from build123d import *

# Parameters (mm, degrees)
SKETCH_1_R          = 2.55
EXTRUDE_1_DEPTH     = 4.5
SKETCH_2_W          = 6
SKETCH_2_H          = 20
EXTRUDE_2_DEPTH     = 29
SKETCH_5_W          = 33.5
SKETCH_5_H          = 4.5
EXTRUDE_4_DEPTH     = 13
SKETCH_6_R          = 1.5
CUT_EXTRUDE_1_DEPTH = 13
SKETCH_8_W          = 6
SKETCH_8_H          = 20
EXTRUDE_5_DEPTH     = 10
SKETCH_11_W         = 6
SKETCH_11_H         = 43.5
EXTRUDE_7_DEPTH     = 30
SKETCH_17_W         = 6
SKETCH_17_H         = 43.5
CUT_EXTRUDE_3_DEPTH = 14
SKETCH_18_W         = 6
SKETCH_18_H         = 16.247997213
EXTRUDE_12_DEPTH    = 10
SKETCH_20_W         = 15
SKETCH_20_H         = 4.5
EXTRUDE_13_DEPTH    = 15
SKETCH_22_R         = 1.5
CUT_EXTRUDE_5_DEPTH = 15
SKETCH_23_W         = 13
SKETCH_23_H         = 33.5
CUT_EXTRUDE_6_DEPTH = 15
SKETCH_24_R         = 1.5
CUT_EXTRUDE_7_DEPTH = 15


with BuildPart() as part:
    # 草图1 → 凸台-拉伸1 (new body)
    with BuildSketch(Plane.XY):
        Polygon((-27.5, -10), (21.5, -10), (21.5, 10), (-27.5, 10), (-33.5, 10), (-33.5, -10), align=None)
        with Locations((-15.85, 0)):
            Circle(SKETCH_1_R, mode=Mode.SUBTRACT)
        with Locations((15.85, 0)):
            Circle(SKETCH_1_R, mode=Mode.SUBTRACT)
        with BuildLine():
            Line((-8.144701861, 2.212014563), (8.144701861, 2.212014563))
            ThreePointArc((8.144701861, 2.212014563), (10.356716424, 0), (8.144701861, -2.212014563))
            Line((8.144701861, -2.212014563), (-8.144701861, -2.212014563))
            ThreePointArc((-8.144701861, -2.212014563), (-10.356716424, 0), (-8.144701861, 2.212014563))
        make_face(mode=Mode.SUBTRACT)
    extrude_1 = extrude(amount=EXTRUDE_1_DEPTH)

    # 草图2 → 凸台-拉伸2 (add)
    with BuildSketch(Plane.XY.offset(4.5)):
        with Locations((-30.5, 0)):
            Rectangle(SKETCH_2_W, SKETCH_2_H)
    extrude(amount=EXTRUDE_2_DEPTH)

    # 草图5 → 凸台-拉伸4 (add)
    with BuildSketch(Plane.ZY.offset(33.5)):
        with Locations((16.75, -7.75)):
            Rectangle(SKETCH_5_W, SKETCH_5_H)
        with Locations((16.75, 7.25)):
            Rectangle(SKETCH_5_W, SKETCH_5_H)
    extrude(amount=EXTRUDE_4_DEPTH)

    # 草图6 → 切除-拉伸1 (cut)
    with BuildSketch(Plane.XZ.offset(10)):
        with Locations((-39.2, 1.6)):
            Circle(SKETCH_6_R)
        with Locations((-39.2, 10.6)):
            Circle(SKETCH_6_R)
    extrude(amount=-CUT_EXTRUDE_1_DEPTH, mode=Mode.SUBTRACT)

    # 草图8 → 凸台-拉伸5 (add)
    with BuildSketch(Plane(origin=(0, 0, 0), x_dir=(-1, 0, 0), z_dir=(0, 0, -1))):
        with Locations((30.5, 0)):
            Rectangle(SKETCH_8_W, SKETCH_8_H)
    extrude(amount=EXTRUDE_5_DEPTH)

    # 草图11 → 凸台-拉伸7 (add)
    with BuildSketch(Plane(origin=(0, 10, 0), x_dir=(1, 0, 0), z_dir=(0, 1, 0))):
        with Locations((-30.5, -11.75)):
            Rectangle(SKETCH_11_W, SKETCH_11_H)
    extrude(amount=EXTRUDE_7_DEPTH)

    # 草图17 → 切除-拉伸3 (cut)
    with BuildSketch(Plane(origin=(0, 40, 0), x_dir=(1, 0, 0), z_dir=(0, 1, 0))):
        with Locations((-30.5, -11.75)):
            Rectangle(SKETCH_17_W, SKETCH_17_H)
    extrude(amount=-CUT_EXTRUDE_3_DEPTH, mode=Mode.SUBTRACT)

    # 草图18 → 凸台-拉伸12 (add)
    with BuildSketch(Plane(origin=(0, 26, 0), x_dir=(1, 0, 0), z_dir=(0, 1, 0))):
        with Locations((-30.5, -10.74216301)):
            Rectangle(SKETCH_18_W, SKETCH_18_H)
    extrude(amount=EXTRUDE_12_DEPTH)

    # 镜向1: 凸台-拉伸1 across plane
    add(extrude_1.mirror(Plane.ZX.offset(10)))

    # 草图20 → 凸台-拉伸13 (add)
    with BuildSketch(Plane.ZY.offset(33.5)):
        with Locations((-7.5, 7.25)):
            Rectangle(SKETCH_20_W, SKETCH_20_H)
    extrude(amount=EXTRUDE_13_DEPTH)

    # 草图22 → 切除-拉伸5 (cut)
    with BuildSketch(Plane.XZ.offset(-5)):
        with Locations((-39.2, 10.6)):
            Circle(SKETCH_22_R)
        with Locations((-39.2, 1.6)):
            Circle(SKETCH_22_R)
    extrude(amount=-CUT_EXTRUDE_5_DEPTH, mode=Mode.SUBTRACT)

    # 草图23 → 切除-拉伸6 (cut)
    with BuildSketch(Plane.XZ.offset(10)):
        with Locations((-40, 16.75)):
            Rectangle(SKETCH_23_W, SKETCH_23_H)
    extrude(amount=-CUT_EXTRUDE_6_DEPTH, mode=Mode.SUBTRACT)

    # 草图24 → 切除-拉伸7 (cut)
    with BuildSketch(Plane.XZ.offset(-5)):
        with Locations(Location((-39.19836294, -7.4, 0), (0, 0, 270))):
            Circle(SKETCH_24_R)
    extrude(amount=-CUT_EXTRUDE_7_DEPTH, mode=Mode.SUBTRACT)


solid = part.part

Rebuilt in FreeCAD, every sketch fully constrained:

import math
import FreeCAD as App
import Part
import Sketcher

doc = App.newDocument("Part")
params = doc.addObject("Spreadsheet::Sheet", "Params")
for row, (alias, value) in enumerate([
    ("sketch1_diameter", "5.1 mm"),
    ("sketch1_width", "55 mm"),
    ("sketch1_height", "20 mm"),
    ("pad1_length", "4.5 mm"),
    ("sketch2_width", "6 mm"),
    ("sketch2_height", "20 mm"),
    ("pad2_length", "29 mm"),
    ("sketch3_width", "4.5 mm"),
    ("sketch3_height", "33.5 mm"),
    ("pad3_length", "13 mm"),
    ("sketch4_diameter", "3 mm"),
    ("pocket1_length", "13 mm"),
    ("sketch5_width", "6 mm"),
    ("sketch5_height", "20 mm"),
    ("pad4_length", "10 mm"),
    ("sketch6_width", "6 mm"),
    ("sketch6_height", "43.5 mm"),
    ("pad5_length", "30 mm"),
    ("sketch7_width", "6 mm"),
    ("sketch7_height", "43.5 mm"),
    ("pocket2_length", "14 mm"),
    ("sketch8_width", "6 mm"),
    ("pad6_length", "10 mm"),
    ("sketch9_height", "15 mm"),
    ("sketch9_width", "4.5 mm"),
    ("pad7_length", "15 mm"),
    ("sketch10_diameter", "3 mm"),
    ("pocket3_length", "15 mm"),
    ("sketch11_width", "13 mm"),
    ("sketch11_height", "33.5 mm"),
    ("pocket4_length", "15 mm"),
    ("sketch12_diameter", "3 mm"),
    ("pocket5_length", "15 mm"),
], start=1):
    params.set(f"A{row}", alias)
    params.set(f"B{row}", "=" + value)
    params.setAlias(f"B{row}", alias)

body = doc.addObject("PartDesign::Body", "Body")

# Sketch on XY plane
sketch1 = doc.addObject("Sketcher::SketchObject", "Sketch")
body.addObject(sketch1)
sketch1.AttachmentSupport = (doc.XY_Plane, [""])
sketch1.MapMode = "FlatFace"
sketch1.addGeometry([
    Part.LineSegment(App.Vector(21.5, -10, 0), App.Vector(21.5, 10, 0)),  # 0
    Part.LineSegment(App.Vector(21.5, 10, 0), App.Vector(-33.5, 10, 0)),  # 1
    Part.LineSegment(App.Vector(-33.5, 10, 0), App.Vector(-33.5, -10, 0)),  # 2
    Part.LineSegment(App.Vector(-33.5, -10, 0), App.Vector(21.5, -10, 0)),  # 3
    Part.Circle(App.Vector(-15.8, 0, 0), App.Vector(0, 0, 1), 2.5),  # 4
    Part.ArcOfCircle(Part.Circle(App.Vector(-8.1, 0, 0), App.Vector(0, 0, 1), 2.2), math.radians(90), math.radians(270)),  # 5
    Part.LineSegment(App.Vector(-8.1, 2.2, 0), App.Vector(8.1, 2.2, 0)),  # 6
    Part.ArcOfCircle(Part.Circle(App.Vector(8.1, 0, 0), App.Vector(0, 0, 1), 2.2), math.radians(-90), math.radians(90)),  # 7
    Part.LineSegment(App.Vector(8.1, -2.2, 0), App.Vector(-8.1, -2.2, 0)),  # 8
    Part.Circle(App.Vector(15.8, 0, 0), App.Vector(0, 0, 1), 2.5),  # 9
], False)
sketch1.addConstraint([
    Sketcher.Constraint("Coincident", 0, 2, 1, 1),
    Sketcher.Constraint("Coincident", 1, 2, 2, 1),
    Sketcher.Constraint("Coincident", 2, 2, 3, 1),
    Sketcher.Constraint("Coincident", 3, 2, 0, 1),
    Sketcher.Constraint("Tangent", 5, 1, 6, 1),
    Sketcher.Constraint("Tangent", 6, 2, 7, 2),
    Sketcher.Constraint("Tangent", 7, 1, 8, 1),
    Sketcher.Constraint("Tangent", 8, 2, 5, 2),
    Sketcher.Constraint("Vertical", 0),
    Sketcher.Constraint("Horizontal", 1),
    Sketcher.Constraint("Vertical", 2),
    Sketcher.Constraint("Horizontal", 3),
    Sketcher.Constraint("Horizontal", 6),
    Sketcher.Constraint("Horizontal", 8),
    Sketcher.Constraint("Equal", 4, 9),
    Sketcher.Constraint("Symmetric", 5, 3, 7, 3, -1, 1),
    Sketcher.Constraint("Symmetric", 4, 3, 9, 3, -1, 1),
    Sketcher.Constraint("PointOnObject", 4, 3, -1),
    Sketcher.Constraint("Diameter", 4, 5.1),
    Sketcher.Constraint("DistanceX", 1, 2, 1, 1, 55.0),
    Sketcher.Constraint("DistanceY", 0, 1, 0, 2, 20.0),
    Sketcher.Constraint("DistanceY", -1, 1, 0, 2, 10.0),
    Sketcher.Constraint("DistanceX", -1, 1, 0, 2, 21.5),
    Sketcher.Constraint("DistanceX", 4, 3, 9, 3, 31.7),
    Sketcher.Constraint("Radius", 5, 2.212015),
    Sketcher.Constraint("DistanceX", 5, 3, -1, 1, 8.144702),
])
sketch1.setExpression("Constraints[18]", "Params.sketch1_diameter")
sketch1.setExpression("Constraints[19]", "Params.sketch1_width")
sketch1.setExpression("Constraints[20]", "Params.sketch1_height")
pad1 = doc.addObject("PartDesign::Pad", "Pad")
body.addObject(pad1)
pad1.Profile = sketch1
pad1.setExpression("Length", "Params.pad1_length")

# Sketch on XY plane
sketch2 = doc.addObject("Sketcher::SketchObject", "Sketch001")
body.addObject(sketch2)
sketch2.AttachmentSupport = (doc.XY_Plane, [""])
sketch2.MapMode = "FlatFace"
sketch2.AttachmentOffset = App.Placement(App.Vector(0, 0, 4.5), App.Rotation())
sketch2.addGeometry([
    Part.LineSegment(App.Vector(-34, 10, 0), App.Vector(-34, -10, 0)),
    Part.LineSegment(App.Vector(-34, -10, 0), App.Vector(-28, -10, 0)),
    Part.LineSegment(App.Vector(-28, -10, 0), App.Vector(-28, 10, 0)),
    Part.LineSegment(App.Vector(-28, 10, 0), App.Vector(-34, 10, 0)),
], False)
sketch2.addConstraint([
    Sketcher.Constraint("Coincident", 0, 2, 1, 1),
    Sketcher.Constraint("Coincident", 1, 2, 2, 1),
    Sketcher.Constraint("Coincident", 2, 2, 3, 1),
    Sketcher.Constraint("Coincident", 3, 2, 0, 1),
    Sketcher.Constraint("Vertical", 0),
    Sketcher.Constraint("Horizontal", 1),
    Sketcher.Constraint("Vertical", 2),
    Sketcher.Constraint("Horizontal", 3),
    Sketcher.Constraint("DistanceX", 1, 1, 1, 2, 6.0),
    Sketcher.Constraint("DistanceY", 0, 2, 0, 1, 20.0),
    Sketcher.Constraint("DistanceY", 0, 2, -1, 1, 10.0),
    Sketcher.Constraint("DistanceX", 0, 2, -1, 1, 33.5),
])
sketch2.setExpression("Constraints[8]", "Params.sketch2_width")
sketch2.setExpression("Constraints[9]", "Params.sketch2_height")
pad2 = doc.addObject("PartDesign::Pad", "Pad001")
body.addObject(pad2)
pad2.Profile = sketch2
pad2.setExpression("Length", "Params.pad2_length")

# Sketch on YZ plane
sketch3 = doc.addObject("Sketcher::SketchObject", "Sketch002")
body.addObject(sketch3)
sketch3.AttachmentSupport = (doc.YZ_Plane, [""])
sketch3.MapMode = "FlatFace"
sketch3.AttachmentOffset = App.Placement(App.Vector(0, 0, -33.5), App.Rotation())
sketch3.addGeometry([
    Part.LineSegment(App.Vector(-5.5, 0, 0), App.Vector(-10, 0, 0)),  # 0
    Part.LineSegment(App.Vector(-10, 0, 0), App.Vector(-10, 33.5, 0)),  # 1
    Part.LineSegment(App.Vector(-10, 33.5, 0), App.Vector(-5.5, 33.5, 0)),  # 2
    Part.LineSegment(App.Vector(-5.5, 33.5, 0), App.Vector(-5.5, 0, 0)),  # 3
    Part.LineSegment(App.Vector(9.5, 0, 0), App.Vector(5, 0, 0)),  # 4
    Part.LineSegment(App.Vector(5, 0, 0), App.Vector(5, 33.5, 0)),  # 5
    Part.LineSegment(App.Vector(5, 33.5, 0), App.Vector(9.5, 33.5, 0)),  # 6
    Part.LineSegment(App.Vector(9.5, 33.5, 0), App.Vector(9.5, 0, 0)),  # 7
], False)
sketch3.addConstraint([
    Sketcher.Constraint("Coincident", 0, 2, 1, 1),
    Sketcher.Constraint("Coincident", 1, 2, 2, 1),
    Sketcher.Constraint("Coincident", 2, 2, 3, 1),
    Sketcher.Constraint("Coincident", 3, 2, 0, 1),
    Sketcher.Constraint("Coincident", 4, 2, 5, 1),
    Sketcher.Constraint("Coincident", 5, 2, 6, 1),
    Sketcher.Constraint("Coincident", 6, 2, 7, 1),
    Sketcher.Constraint("Coincident", 7, 2, 4, 1),
    Sketcher.Constraint("Horizontal", 0),
    Sketcher.Constraint("Vertical", 1),
    Sketcher.Constraint("Horizontal", 2),
    Sketcher.Constraint("Vertical", 3),
    Sketcher.Constraint("Horizontal", 4),
    Sketcher.Constraint("Vertical", 5),
    Sketcher.Constraint("Horizontal", 6),
    Sketcher.Constraint("Vertical", 7),
    Sketcher.Constraint("PointOnObject", 0, 2, -1),
    Sketcher.Constraint("PointOnObject", 4, 2, -1),
    Sketcher.Constraint("Horizontal", 2, 2, 5, 2),
    Sketcher.Constraint("Equal", 2, 4),
    Sketcher.Constraint("DistanceX", 0, 2, 0, 1, 4.5),
    Sketcher.Constraint("DistanceY", 1, 1, 1, 2, 33.5),
    Sketcher.Constraint("DistanceX", 0, 2, -1, 1, 10.0),
    Sketcher.Constraint("DistanceX", -1, 1, 4, 2, 5.0),
])
sketch3.setExpression("Constraints[20]", "Params.sketch3_width")
sketch3.setExpression("Constraints[21]", "Params.sketch3_height")
pad3 = doc.addObject("PartDesign::Pad", "Pad002")
body.addObject(pad3)
pad3.Profile = sketch3
pad3.setExpression("Length", "Params.pad3_length")
pad3.Reversed = True

# Sketch on XZ plane
sketch4 = doc.addObject("Sketcher::SketchObject", "Sketch003")
body.addObject(sketch4)
sketch4.AttachmentSupport = (doc.XZ_Plane, [""])
sketch4.MapMode = "FlatFace"
sketch4.AttachmentOffset = App.Placement(App.Vector(0, 0, 10), App.Rotation())
sketch4.addGeometry([
    Part.Circle(App.Vector(-39.2, 1.6, 0), App.Vector(0, 0, 1), 1.5),
    Part.Circle(App.Vector(-39.2, 10.6, 0), App.Vector(0, 0, 1), 1.5),
], False)
sketch4.addConstraint([
    Sketcher.Constraint("Equal", 0, 1),
    Sketcher.Constraint("Vertical", 0, 3, 1, 3),
    Sketcher.Constraint("Diameter", 0, 3.0),
    Sketcher.Constraint("DistanceY", 0, 3, 1, 3, 9.0),
    Sketcher.Constraint("DistanceX", 0, 3, -1, 1, 39.2),
    Sketcher.Constraint("DistanceY", -1, 1, 0, 3, 1.6),
])
sketch4.setExpression("Constraints[2]", "Params.sketch4_diameter")
pocket1 = doc.addObject("PartDesign::Pocket", "Pocket")
body.addObject(pocket1)
pocket1.Profile = sketch4
pocket1.setExpression("Length", "Params.pocket1_length")

# Sketch on XY plane
sketch5 = doc.addObject("Sketcher::SketchObject", "Sketch004")
body.addObject(sketch5)
sketch5.AttachmentSupport = (doc.XY_Plane, [""])
sketch5.MapMode = "FlatFace"
sketch5.addGeometry([
    Part.LineSegment(App.Vector(-28, 10, 0), App.Vector(-28, -10, 0)),
    Part.LineSegment(App.Vector(-28, -10, 0), App.Vector(-34, -10, 0)),
    Part.LineSegment(App.Vector(-34, -10, 0), App.Vector(-34, 10, 0)),
    Part.LineSegment(App.Vector(-34, 10, 0), App.Vector(-28, 10, 0)),
], False)
sketch5.addConstraint([
    Sketcher.Constraint("Coincident", 0, 2, 1, 1),
    Sketcher.Constraint("Coincident", 1, 2, 2, 1),
    Sketcher.Constraint("Coincident", 2, 2, 3, 1),
    Sketcher.Constraint("Coincident", 3, 2, 0, 1),
    Sketcher.Constraint("Vertical", 0),
    Sketcher.Constraint("Horizontal", 1),
    Sketcher.Constraint("Vertical", 2),
    Sketcher.Constraint("Horizontal", 3),
    Sketcher.Constraint("DistanceX", 1, 2, 1, 1, 6.0),
    Sketcher.Constraint("DistanceY", 0, 2, 0, 1, 20.0),
    Sketcher.Constraint("DistanceY", 0, 2, -1, 1, 10.0),
    Sketcher.Constraint("DistanceX", 0, 2, -1, 1, 27.5),
])
sketch5.setExpression("Constraints[8]", "Params.sketch5_width")
sketch5.setExpression("Constraints[9]", "Params.sketch5_height")
pad4 = doc.addObject("PartDesign::Pad", "Pad003")
body.addObject(pad4)
pad4.Profile = sketch5
pad4.setExpression("Length", "Params.pad4_length")
pad4.Reversed = True

# Sketch on XZ plane
sketch6 = doc.addObject("Sketcher::SketchObject", "Sketch005")
body.addObject(sketch6)
sketch6.AttachmentSupport = (doc.XZ_Plane, [""])
sketch6.MapMode = "FlatFace"
sketch6.AttachmentOffset = App.Placement(App.Vector(0, 0, -10), App.Rotation())
sketch6.addGeometry([
    Part.LineSegment(App.Vector(-34, -10, 0), App.Vector(-34, 34, 0)),
    Part.LineSegment(App.Vector(-34, 34, 0), App.Vector(-28, 34, 0)),
    Part.LineSegment(App.Vector(-28, 34, 0), App.Vector(-28, -10, 0)),
    Part.LineSegment(App.Vector(-28, -10, 0), App.Vector(-34, -10, 0)),
], False)
sketch6.addConstraint([
    Sketcher.Constraint("Coincident", 0, 2, 1, 1),
    Sketcher.Constraint("Coincident", 1, 2, 2, 1),
    Sketcher.Constraint("Coincident", 2, 2, 3, 1),
    Sketcher.Constraint("Coincident", 3, 2, 0, 1),
    Sketcher.Constraint("Vertical", 0),
    Sketcher.Constraint("Horizontal", 1),
    Sketcher.Constraint("Vertical", 2),
    Sketcher.Constraint("Horizontal", 3),
    Sketcher.Constraint("DistanceX", 1, 1, 1, 2, 6.0),
    Sketcher.Constraint("DistanceY", 0, 1, 0, 2, 43.5),
    Sketcher.Constraint("DistanceY", 2, 2, -1, 1, 10.0),
    Sketcher.Constraint("DistanceX", 0, 2, -1, 1, 33.5),
])
sketch6.setExpression("Constraints[8]", "Params.sketch6_width")
sketch6.setExpression("Constraints[9]", "Params.sketch6_height")
pad5 = doc.addObject("PartDesign::Pad", "Pad004")
body.addObject(pad5)
pad5.Profile = sketch6
pad5.setExpression("Length", "Params.pad5_length")
pad5.Reversed = True

# Sketch on XZ plane
sketch7 = doc.addObject("Sketcher::SketchObject", "Sketch006")
body.addObject(sketch7)
sketch7.AttachmentSupport = (doc.XZ_Plane, [""])
sketch7.MapMode = "FlatFace"
sketch7.AttachmentOffset = App.Placement(App.Vector(0, 0, -40), App.Rotation())
sketch7.addGeometry([
    Part.LineSegment(App.Vector(-34, -10, 0), App.Vector(-34, 34, 0)),
    Part.LineSegment(App.Vector(-34, 34, 0), App.Vector(-28, 34, 0)),
    Part.LineSegment(App.Vector(-28, 34, 0), App.Vector(-28, -10, 0)),
    Part.LineSegment(App.Vector(-28, -10, 0), App.Vector(-34, -10, 0)),
], False)
sketch7.addConstraint([
    Sketcher.Constraint("Coincident", 0, 2, 1, 1),
    Sketcher.Constraint("Coincident", 1, 2, 2, 1),
    Sketcher.Constraint("Coincident", 2, 2, 3, 1),
    Sketcher.Constraint("Coincident", 3, 2, 0, 1),
    Sketcher.Constraint("Vertical", 0),
    Sketcher.Constraint("Horizontal", 1),
    Sketcher.Constraint("Vertical", 2),
    Sketcher.Constraint("Horizontal", 3),
    Sketcher.Constraint("DistanceX", 1, 1, 1, 2, 6.0),
    Sketcher.Constraint("DistanceY", 0, 1, 0, 2, 43.5),
    Sketcher.Constraint("DistanceY", 2, 2, -1, 1, 10.0),
    Sketcher.Constraint("DistanceX", 0, 2, -1, 1, 33.5),
])
sketch7.setExpression("Constraints[8]", "Params.sketch7_width")
sketch7.setExpression("Constraints[9]", "Params.sketch7_height")
pocket2 = doc.addObject("PartDesign::Pocket", "Pocket001")
body.addObject(pocket2)
pocket2.Profile = sketch7
pocket2.setExpression("Length", "Params.pocket2_length")
pocket2.Reversed = True

# Sketch on XZ plane
sketch8 = doc.addObject("Sketcher::SketchObject", "Sketch007")
body.addObject(sketch8)
sketch8.AttachmentSupport = (doc.XZ_Plane, [""])
sketch8.MapMode = "FlatFace"
sketch8.AttachmentOffset = App.Placement(App.Vector(0, 0, -26), App.Rotation())
sketch8.addGeometry([
    Part.LineSegment(App.Vector(-34, 3, 0), App.Vector(-34, 19, 0)),
    Part.LineSegment(App.Vector(-34, 19, 0), App.Vector(-28, 19, 0)),
    Part.LineSegment(App.Vector(-28, 19, 0), App.Vector(-28, 3, 0)),
    Part.LineSegment(App.Vector(-28, 3, 0), App.Vector(-34, 3, 0)),
], False)
sketch8.addConstraint([
    Sketcher.Constraint("Coincident", 0, 2, 1, 1),
    Sketcher.Constraint("Coincident", 1, 2, 2, 1),
    Sketcher.Constraint("Coincident", 2, 2, 3, 1),
    Sketcher.Constraint("Coincident", 3, 2, 0, 1),
    Sketcher.Constraint("Vertical", 0),
    Sketcher.Constraint("Horizontal", 1),
    Sketcher.Constraint("Vertical", 2),
    Sketcher.Constraint("Horizontal", 3),
    Sketcher.Constraint("DistanceX", 1, 1, 1, 2, 6.0),
    Sketcher.Constraint("DistanceX", 0, 2, -1, 1, 33.5),
    Sketcher.Constraint("DistanceY", 0, 1, 0, 2, 16.247997),
    Sketcher.Constraint("DistanceY", -1, 1, 0, 2, 18.866162),
])
sketch8.setExpression("Constraints[8]", "Params.sketch8_width")
pad6 = doc.addObject("PartDesign::Pad", "Pad005")
body.addObject(pad6)
pad6.Profile = sketch8
pad6.setExpression("Length", "Params.pad6_length")
pad6.Reversed = True
doc.recompute()

datumplane = doc.addObject("PartDesign::Plane", "DatumPlane")
body.addObject(datumplane)
datumplane.AttachmentSupport = (doc.XZ_Plane, [""])
datumplane.MapMode = "FlatFace"
datumplane.AttachmentOffset = App.Placement(App.Vector(0, 0, -10), App.Rotation())
mirrored = doc.addObject("PartDesign::Mirrored", "Mirrored")
body.addObject(mirrored)
mirrored.Originals = [pad1]
mirrored.MirrorPlane = (datumplane, [""])
body.Tip = mirrored

# Sketch on YZ plane
sketch9 = doc.addObject("Sketcher::SketchObject", "Sketch008")
body.addObject(sketch9)
sketch9.AttachmentSupport = (doc.YZ_Plane, [""])
sketch9.MapMode = "FlatFace"
sketch9.AttachmentOffset = App.Placement(App.Vector(0, 0, -33.5), App.Rotation())
sketch9.addGeometry([
    Part.LineSegment(App.Vector(9.5, -15, 0), App.Vector(5, -15, 0)),
    Part.LineSegment(App.Vector(5, -15, 0), App.Vector(5, 0, 0)),
    Part.LineSegment(App.Vector(5, 0, 0), App.Vector(9.5, 0, 0)),
    Part.LineSegment(App.Vector(9.5, 0, 0), App.Vector(9.5, -15, 0)),
], False)
sketch9.addConstraint([
    Sketcher.Constraint("Coincident", 0, 2, 1, 1),
    Sketcher.Constraint("Coincident", 1, 2, 2, 1),
    Sketcher.Constraint("Coincident", 2, 2, 3, 1),
    Sketcher.Constraint("Coincident", 3, 2, 0, 1),
    Sketcher.Constraint("Horizontal", 0),
    Sketcher.Constraint("Vertical", 1),
    Sketcher.Constraint("Horizontal", 2),
    Sketcher.Constraint("Vertical", 3),
    Sketcher.Constraint("PointOnObject", 1, 2, -1),
    Sketcher.Constraint("DistanceY", 1, 1, 1, 2, 15.0),
    Sketcher.Constraint("DistanceX", 0, 2, 0, 1, 4.5),
    Sketcher.Constraint("DistanceX", -1, 1, 0, 2, 5.0),
])
sketch9.setExpression("Constraints[9]", "Params.sketch9_height")
sketch9.setExpression("Constraints[10]", "Params.sketch9_width")
pad7 = doc.addObject("PartDesign::Pad", "Pad006")
body.addObject(pad7)
pad7.Profile = sketch9
pad7.setExpression("Length", "Params.pad7_length")
pad7.Reversed = True

# Sketch on XZ plane
sketch10 = doc.addObject("Sketcher::SketchObject", "Sketch009")
body.addObject(sketch10)
sketch10.AttachmentSupport = (doc.XZ_Plane, [""])
sketch10.MapMode = "FlatFace"
sketch10.AttachmentOffset = App.Placement(App.Vector(0, 0, -5), App.Rotation())
sketch10.addGeometry([
    Part.Circle(App.Vector(-39.2, 10.6, 0), App.Vector(0, 0, 1), 1.5),
    Part.Circle(App.Vector(-39.2, 1.6, 0), App.Vector(0, 0, 1), 1.5),
], False)
sketch10.addConstraint([
    Sketcher.Constraint("Equal", 0, 1),
    Sketcher.Constraint("Vertical", 0, 3, 1, 3),
    Sketcher.Constraint("Diameter", 0, 3.0),
    Sketcher.Constraint("DistanceY", 1, 3, 0, 3, 9.0),
    Sketcher.Constraint("DistanceX", 0, 3, -1, 1, 39.2),
    Sketcher.Constraint("DistanceY", -1, 1, 0, 3, 10.6),
])
sketch10.setExpression("Constraints[2]", "Params.sketch10_diameter")
pocket3 = doc.addObject("PartDesign::Pocket", "Pocket002")
body.addObject(pocket3)
pocket3.Profile = sketch10
pocket3.setExpression("Length", "Params.pocket3_length")

# Sketch on XZ plane
sketch11 = doc.addObject("Sketcher::SketchObject", "Sketch010")
body.addObject(sketch11)
sketch11.AttachmentSupport = (doc.XZ_Plane, [""])
sketch11.MapMode = "FlatFace"
sketch11.AttachmentOffset = App.Placement(App.Vector(0, 0, 10), App.Rotation())
sketch11.addGeometry([
    Part.LineSegment(App.Vector(-46, 34, 0), App.Vector(-46, 0, 0)),
    Part.LineSegment(App.Vector(-46, 0, 0), App.Vector(-34, 0, 0)),
    Part.LineSegment(App.Vector(-34, 0, 0), App.Vector(-34, 34, 0)),
    Part.LineSegment(App.Vector(-34, 34, 0), App.Vector(-46, 34, 0)),
], False)
sketch11.addConstraint([
    Sketcher.Constraint("Coincident", 0, 2, 1, 1),
    Sketcher.Constraint("Coincident", 1, 2, 2, 1),
    Sketcher.Constraint("Coincident", 2, 2, 3, 1),
    Sketcher.Constraint("Coincident", 3, 2, 0, 1),
    Sketcher.Constraint("Vertical", 0),
    Sketcher.Constraint("Horizontal", 1),
    Sketcher.Constraint("Vertical", 2),
    Sketcher.Constraint("Horizontal", 3),
    Sketcher.Constraint("PointOnObject", 0, 2, -1),
    Sketcher.Constraint("DistanceX", 1, 1, 1, 2, 13.0),
    Sketcher.Constraint("DistanceY", 0, 2, 0, 1, 33.5),
    Sketcher.Constraint("DistanceX", 0, 2, -1, 1, 46.5),
])
sketch11.setExpression("Constraints[9]", "Params.sketch11_width")
sketch11.setExpression("Constraints[10]", "Params.sketch11_height")
pocket4 = doc.addObject("PartDesign::Pocket", "Pocket003")
body.addObject(pocket4)
pocket4.Profile = sketch11
pocket4.setExpression("Length", "Params.pocket4_length")

# Sketch on XZ plane
sketch12 = doc.addObject("Sketcher::SketchObject", "Sketch011")
body.addObject(sketch12)
sketch12.AttachmentSupport = (doc.XZ_Plane, [""])
sketch12.MapMode = "FlatFace"
sketch12.AttachmentOffset = App.Placement(App.Vector(0, 0, -5), App.Rotation())
sketch12.addGeometry(Part.Circle(App.Vector(-39.2, -7.4, 0), App.Vector(0, 0, 1), 1.5), False)
sketch12.addConstraint([
    Sketcher.Constraint("Diameter", 0, 3.0),
    Sketcher.Constraint("DistanceY", 0, 3, -1, 1, 7.4),
    Sketcher.Constraint("DistanceX", 0, 3, -1, 1, 39.198363),
])
sketch12.setExpression("Constraints[0]", "Params.sketch12_diameter")
pocket5 = doc.addObject("PartDesign::Pocket", "Pocket004")
body.addObject(pocket5)
pocket5.Profile = sketch12
pocket5.setExpression("Length", "Params.pocket5_length")

doc.recompute()
